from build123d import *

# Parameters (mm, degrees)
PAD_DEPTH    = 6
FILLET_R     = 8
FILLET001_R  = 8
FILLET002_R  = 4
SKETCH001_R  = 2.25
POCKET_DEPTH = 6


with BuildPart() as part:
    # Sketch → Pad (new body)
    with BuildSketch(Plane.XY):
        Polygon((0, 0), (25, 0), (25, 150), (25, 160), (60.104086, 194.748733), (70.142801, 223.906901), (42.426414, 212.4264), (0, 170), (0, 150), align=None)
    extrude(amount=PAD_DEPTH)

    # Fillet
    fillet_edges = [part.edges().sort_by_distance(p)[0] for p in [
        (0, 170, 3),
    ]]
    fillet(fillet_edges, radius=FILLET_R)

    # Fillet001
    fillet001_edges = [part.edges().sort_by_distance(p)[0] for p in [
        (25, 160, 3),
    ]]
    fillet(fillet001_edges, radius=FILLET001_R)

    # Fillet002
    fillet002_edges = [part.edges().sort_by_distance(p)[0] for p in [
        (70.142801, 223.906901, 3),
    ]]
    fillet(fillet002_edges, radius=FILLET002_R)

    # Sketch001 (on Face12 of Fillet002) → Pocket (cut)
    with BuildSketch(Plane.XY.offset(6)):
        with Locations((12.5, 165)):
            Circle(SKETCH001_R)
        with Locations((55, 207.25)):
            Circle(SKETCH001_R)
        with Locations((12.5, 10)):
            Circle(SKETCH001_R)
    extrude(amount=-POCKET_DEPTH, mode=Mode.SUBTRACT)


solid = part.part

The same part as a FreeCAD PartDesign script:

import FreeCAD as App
import Part
import Sketcher
from FreeCAD import Vector
Q = App.Units.Quantity


def edges_at(feature, points):
    """Names of the edges that pass closest to the given points."""
    edges = feature.Shape.Edges
    near = lambda p: min(range(len(edges)), key=lambda i: edges[i].distToShape(Part.Vertex(*p))[0])
    return sorted({f"Edge{near(p) + 1}" for p in points})

doc = App.newDocument("Part")
body = doc.addObject("PartDesign::Body", "Body")

# Sketch on XY plane
sketch1 = doc.addObject("Sketcher::SketchObject", "Sketch")
body.addObject(sketch1)
sketch1.AttachmentSupport = (doc.XY_Plane, [""])
sketch1.MapMode = "FlatFace"
sketch1.addGeometry([
    Part.LineSegment(Vector(0, 0, 0), Vector(25, 0, 0)),  # 0
    Part.LineSegment(Vector(25, 0, 0), Vector(25, 160, 0)),  # 1
    Part.LineSegment(Vector(25, 160, 0), Vector(60, 195, 0)),  # 2
    Part.LineSegment(Vector(60, 195, 0), Vector(70, 224, 0)),  # 3
    Part.LineSegment(Vector(70, 224, 0), Vector(42, 212, 0)),  # 4
    Part.LineSegment(Vector(42, 212, 0), Vector(0, 170, 0)),  # 5
    Part.LineSegment(Vector(0, 170, 0), Vector(0, 0, 0)),  # 6
], False)
sketch1.addConstraint([
    Sketcher.Constraint("Coincident", 0, 2, 1, 1),
    Sketcher.Constraint("Coincident", 1, 2, 2, 1),
    Sketcher.Constraint("Coincident", 2, 2, 3, 1),
    Sketcher.Constraint("Coincident", 3, 2, 4, 1),
    Sketcher.Constraint("Coincident", 4, 2, 5, 1),
    Sketcher.Constraint("Coincident", 5, 2, 6, 1),
    Sketcher.Constraint("Coincident", 6, 2, 0, 1),
    Sketcher.Constraint("Horizontal", 0),
    Sketcher.Constraint("Vertical", 1),
    Sketcher.Constraint("Vertical", 6),
    Sketcher.Constraint("Coincident", 6, 2, -1, 1),
    Sketcher.Constraint("DistanceX", 0, 1, 0, 2, Q("25 mm")),
    Sketcher.Constraint("DistanceY", 1, 1, 1, 2, Q("160 mm")),
    Sketcher.Constraint("DistanceY", 6, 2, 6, 1, Q("170 mm")),
    Sketcher.Constraint("Angle", 5, Q("-135.000009 deg")),
    Sketcher.Constraint("Distance", 4, Q("30 mm")),
    Sketcher.Constraint("Distance", 5, Q("60 mm")),
    Sketcher.Constraint("Angle", 4, Q("-157.500004 deg")),
    Sketcher.Constraint("Distance", 2, Q("49.394041 mm")),
    Sketcher.Constraint("DistanceY", 2, 2, 3, 2, Q("29.158168 mm")),
])
pad1 = doc.addObject("PartDesign::Pad", "Pad")
body.addObject(pad1)
pad1.Profile = sketch1
pad1.Length = 6
doc.recompute()

fillet = doc.addObject("PartDesign::Fillet", "Fillet")
body.addObject(fillet)
fillet.Base = (pad1, edges_at(pad1, [(0, 170, 3)]))
fillet.Radius = 8
doc.recompute()

fillet2 = doc.addObject("PartDesign::Fillet", "Fillet001")
body.addObject(fillet2)
fillet2.Base = (fillet, edges_at(fillet, [(25, 160, 3)]))
fillet2.Radius = 8
doc.recompute()

fillet3 = doc.addObject("PartDesign::Fillet", "Fillet002")
body.addObject(fillet3)
fillet3.Base = (fillet2, edges_at(fillet2, [(70.143, 223.907, 3)]))
fillet3.Radius = 4

# Sketch on XY plane
sketch2 = doc.addObject("Sketcher::SketchObject", "Sketch001")
body.addObject(sketch2)
sketch2.AttachmentSupport = (doc.XY_Plane, [""])
sketch2.MapMode = "FlatFace"
sketch2.AttachmentOffset = App.Placement(Vector(0, 0, 6), App.Rotation())
sketch2.addGeometry([
    Part.Circle(Vector(12.5, 165, 0), Vector(0, 0, 1), 2.2),
    Part.Circle(Vector(55, 207.2, 0), Vector(0, 0, 1), 2.2),
    Part.Circle(Vector(12.5, 10, 0), Vector(0, 0, 1), 2.2),
], False)
sketch2.addConstraint([
    Sketcher.Constraint("Equal", 0, 1),
    Sketcher.Constraint("Equal", 1, 2),
    Sketcher.Constraint("Vertical", 0, 3, 2, 3),
    Sketcher.Constraint("Diameter", 0, Q("4.5 mm")),
    Sketcher.Constraint("DistanceY", -1, 1, 0, 3, Q("165 mm")),
    Sketcher.Constraint("DistanceX", -1, 1, 1, 3, Q("55 mm")),
    Sketcher.Constraint("DistanceY", -1, 1, 2, 3, Q("10 mm")),
    Sketcher.Constraint("DistanceX", -1, 1, 0, 3, Q("12.5 mm")),
    Sketcher.Constraint("DistanceY", -1, 1, 1, 3, Q("207.25 mm")),
])
pocket1 = doc.addObject("PartDesign::Pocket", "Pocket")
body.addObject(pocket1)
pocket1.Profile = sketch2
pocket1.Length = 6

doc.recompute()
